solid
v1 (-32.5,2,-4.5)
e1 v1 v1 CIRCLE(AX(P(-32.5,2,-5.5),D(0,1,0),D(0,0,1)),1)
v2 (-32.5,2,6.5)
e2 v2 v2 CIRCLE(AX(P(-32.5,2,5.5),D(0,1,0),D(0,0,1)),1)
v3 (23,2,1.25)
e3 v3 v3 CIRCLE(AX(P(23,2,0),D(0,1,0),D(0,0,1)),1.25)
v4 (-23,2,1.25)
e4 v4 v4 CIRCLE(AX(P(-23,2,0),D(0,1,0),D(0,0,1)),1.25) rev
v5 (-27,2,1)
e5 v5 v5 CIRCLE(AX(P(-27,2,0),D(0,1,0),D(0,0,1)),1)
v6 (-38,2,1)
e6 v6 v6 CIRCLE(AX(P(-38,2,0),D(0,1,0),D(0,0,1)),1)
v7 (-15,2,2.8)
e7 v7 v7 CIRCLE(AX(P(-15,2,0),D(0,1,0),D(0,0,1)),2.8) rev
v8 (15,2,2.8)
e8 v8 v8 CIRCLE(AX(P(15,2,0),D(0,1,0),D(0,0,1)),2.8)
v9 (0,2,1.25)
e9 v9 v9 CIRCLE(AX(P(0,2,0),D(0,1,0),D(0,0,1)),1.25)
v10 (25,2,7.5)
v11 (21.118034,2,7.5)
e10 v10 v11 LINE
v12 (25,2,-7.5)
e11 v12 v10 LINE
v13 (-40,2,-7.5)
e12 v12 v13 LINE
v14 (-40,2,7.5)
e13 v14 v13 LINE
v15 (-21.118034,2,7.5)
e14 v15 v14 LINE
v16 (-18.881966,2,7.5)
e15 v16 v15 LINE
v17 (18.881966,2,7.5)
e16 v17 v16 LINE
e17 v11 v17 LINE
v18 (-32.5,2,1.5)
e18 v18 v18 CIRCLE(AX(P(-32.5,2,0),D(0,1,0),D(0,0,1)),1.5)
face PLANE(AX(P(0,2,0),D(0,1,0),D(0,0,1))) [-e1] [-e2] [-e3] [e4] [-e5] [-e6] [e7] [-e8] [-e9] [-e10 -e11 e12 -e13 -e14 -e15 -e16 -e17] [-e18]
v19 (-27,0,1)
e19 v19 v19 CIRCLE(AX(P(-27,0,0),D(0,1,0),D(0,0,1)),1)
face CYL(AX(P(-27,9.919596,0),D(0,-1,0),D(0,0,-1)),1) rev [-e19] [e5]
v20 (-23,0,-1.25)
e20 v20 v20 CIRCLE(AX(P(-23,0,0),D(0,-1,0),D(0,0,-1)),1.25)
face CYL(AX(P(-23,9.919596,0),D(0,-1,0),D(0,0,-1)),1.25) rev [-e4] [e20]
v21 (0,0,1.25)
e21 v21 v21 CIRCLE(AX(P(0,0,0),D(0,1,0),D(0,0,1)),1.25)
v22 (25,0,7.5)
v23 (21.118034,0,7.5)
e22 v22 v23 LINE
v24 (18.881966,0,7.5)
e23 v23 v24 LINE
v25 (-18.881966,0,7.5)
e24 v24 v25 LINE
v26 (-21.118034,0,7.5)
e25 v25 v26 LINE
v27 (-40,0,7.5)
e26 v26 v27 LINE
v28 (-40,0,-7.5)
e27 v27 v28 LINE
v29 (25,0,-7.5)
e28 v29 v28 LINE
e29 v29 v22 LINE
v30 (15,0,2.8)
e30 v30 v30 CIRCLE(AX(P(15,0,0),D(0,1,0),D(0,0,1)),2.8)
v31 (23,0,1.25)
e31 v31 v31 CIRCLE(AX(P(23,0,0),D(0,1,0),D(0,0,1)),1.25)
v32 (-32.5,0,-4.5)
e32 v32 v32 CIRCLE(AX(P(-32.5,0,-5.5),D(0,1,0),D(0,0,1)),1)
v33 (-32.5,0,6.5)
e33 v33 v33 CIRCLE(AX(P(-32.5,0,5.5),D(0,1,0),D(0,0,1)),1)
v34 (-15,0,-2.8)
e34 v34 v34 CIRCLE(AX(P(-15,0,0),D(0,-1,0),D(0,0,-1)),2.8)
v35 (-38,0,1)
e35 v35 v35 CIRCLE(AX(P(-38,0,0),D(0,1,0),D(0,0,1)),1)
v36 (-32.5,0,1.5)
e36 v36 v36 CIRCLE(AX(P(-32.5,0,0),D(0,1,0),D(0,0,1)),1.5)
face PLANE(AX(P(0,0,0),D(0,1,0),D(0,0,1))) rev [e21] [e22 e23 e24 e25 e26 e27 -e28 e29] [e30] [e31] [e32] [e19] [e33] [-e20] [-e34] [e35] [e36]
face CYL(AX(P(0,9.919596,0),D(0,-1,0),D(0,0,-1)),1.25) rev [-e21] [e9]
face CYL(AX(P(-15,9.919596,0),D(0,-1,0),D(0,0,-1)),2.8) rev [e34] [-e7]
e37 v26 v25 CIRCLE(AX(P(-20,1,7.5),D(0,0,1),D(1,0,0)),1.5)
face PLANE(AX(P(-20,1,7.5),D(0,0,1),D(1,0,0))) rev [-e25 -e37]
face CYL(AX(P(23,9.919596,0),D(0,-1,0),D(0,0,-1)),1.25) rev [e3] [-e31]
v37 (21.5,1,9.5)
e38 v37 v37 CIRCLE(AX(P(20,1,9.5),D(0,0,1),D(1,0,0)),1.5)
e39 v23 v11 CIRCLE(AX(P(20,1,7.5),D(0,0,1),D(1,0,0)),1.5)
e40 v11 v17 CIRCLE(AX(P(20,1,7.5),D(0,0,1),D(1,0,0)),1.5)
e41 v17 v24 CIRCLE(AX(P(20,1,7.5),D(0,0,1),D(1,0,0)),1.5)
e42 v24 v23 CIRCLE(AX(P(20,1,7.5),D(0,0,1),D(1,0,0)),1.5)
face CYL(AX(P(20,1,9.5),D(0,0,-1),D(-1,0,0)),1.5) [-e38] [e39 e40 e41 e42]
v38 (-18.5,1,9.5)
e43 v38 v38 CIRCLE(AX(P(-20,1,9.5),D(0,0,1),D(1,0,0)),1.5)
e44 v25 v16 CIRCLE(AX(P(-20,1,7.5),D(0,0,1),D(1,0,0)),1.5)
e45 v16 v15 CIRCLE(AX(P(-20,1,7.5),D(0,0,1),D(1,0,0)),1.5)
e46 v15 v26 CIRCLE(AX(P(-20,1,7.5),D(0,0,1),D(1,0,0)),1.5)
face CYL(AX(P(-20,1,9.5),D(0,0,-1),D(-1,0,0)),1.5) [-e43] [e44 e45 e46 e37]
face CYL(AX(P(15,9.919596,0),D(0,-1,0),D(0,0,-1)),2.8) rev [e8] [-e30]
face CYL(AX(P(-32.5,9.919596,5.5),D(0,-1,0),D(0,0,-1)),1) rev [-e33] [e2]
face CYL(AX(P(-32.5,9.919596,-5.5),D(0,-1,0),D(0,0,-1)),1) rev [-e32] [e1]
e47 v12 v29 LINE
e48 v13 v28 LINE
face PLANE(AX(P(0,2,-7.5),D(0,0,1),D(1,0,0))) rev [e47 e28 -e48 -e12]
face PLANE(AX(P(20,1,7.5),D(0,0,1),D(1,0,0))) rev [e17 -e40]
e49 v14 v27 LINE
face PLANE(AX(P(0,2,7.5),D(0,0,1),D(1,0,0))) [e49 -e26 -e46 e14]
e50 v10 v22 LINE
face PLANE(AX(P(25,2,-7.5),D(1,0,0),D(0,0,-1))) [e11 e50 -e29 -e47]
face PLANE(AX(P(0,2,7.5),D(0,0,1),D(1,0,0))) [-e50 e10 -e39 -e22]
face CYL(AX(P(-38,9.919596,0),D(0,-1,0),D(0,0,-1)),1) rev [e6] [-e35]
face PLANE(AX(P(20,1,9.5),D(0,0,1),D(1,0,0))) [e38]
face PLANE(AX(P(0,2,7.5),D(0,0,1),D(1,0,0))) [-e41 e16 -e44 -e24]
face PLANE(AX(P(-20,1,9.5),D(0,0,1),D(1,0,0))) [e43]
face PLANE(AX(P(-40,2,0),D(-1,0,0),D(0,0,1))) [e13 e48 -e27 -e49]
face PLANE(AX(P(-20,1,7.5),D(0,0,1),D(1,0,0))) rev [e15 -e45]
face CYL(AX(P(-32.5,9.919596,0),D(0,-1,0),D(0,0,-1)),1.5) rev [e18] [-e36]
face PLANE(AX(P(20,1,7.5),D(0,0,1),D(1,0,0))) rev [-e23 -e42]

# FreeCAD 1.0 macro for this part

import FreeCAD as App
import Part
import Sketcher
from FreeCAD import Vector
Q = App.Units.Quantity


def add_polygon(sketch, points):
    """Adds a closed chain of lines whose ends are joined by coincident constraints."""
    first, n = sketch.GeometryCount, len(points)
    for a, b in zip(points, points[1:] + points[:1]):
        sketch.addGeometry(Part.LineSegment(App.Vector(*a, 0), App.Vector(*b, 0)), False)
    for i in range(n):
        sketch.addConstraint(Sketcher.Constraint("Coincident", first + i, 2, first + (i + 1) % n, 1))

doc = App.newDocument("Part")
params = doc.addObject("Spreadsheet::Sheet", "Params")
for row, (alias, value) in enumerate([
    ("sketch1_width", "65 mm"),
    ("sketch1_height", "15 mm"),
    ("pad1_length", "2 mm"),
    ("sketch2_diameter", "3 mm"),
    ("sketch2_diameter2", "2 mm"),
    ("sketch2_diameter3", "2.5 mm"),
    ("sketch2_diameter4", "5.6 mm"),
    ("pocket1_length", "2 mm"),
    ("sketch3_diameter", "3 mm"),
    ("pad2_length", "2 mm"),
], start=1):
    params.set(f"A{row}", alias)
    params.set(f"B{row}", "=" + value)
    params.setAlias(f"B{row}", alias)

body = doc.addObject("PartDesign::Body", "Body")

# Sketch on XZ plane
sketch1 = doc.addObject("Sketcher::SketchObject", "Sketch")
body.addObject(sketch1)
sketch1.AttachmentSupport = (doc.XZ_Plane, [""])
sketch1.MapMode = "FlatFace"
add_polygon(sketch1, [(-40, -8), (-40, 8), (25, 8), (25, -8)])  # lines 0-3
sketch1.addConstraint([
    Sketcher.Constraint("Vertical", 0),
    Sketcher.Constraint("Horizontal", 1),
    Sketcher.Constraint("Vertical", 2),
    Sketcher.Constraint("Horizontal", 3),
    Sketcher.Constraint("DistanceX", 1, 1, 1, 2, Q("65 mm")),
    Sketcher.Constraint("DistanceY", 0, 1, 0, 2, Q("15 mm")),
    Sketcher.Constraint("DistanceX", 0, 2, -1, 1, Q("40 mm")),
    Sketcher.Constraint("DistanceY", -1, 1, 0, 2, Q("7.5 mm")),
])
sketch1.setExpression("Constraints[8]", "Params.sketch1_width")
sketch1.setExpression("Constraints[9]", "Params.sketch1_height")
pad1 = doc.addObject("PartDesign::Pad", "Pad")
body.addObject(pad1)
pad1.Profile = sketch1
pad1.setExpression("Length", "Params.pad1_length")
pad1.Reversed = True

# Sketch on XZ plane
sketch2 = doc.addObject("Sketcher::SketchObject", "Sketch001")
body.addObject(sketch2)
sketch2.AttachmentSupport = (doc.XZ_Plane, [""])
sketch2.MapMode = "FlatFace"
sketch2.addGeometry([
    Part.Circle(Vector(0, 0, 0), Vector(0, 0, 1), 1.2),  # 0
    Part.Circle(Vector(15, 0, 0), Vector(0, 0, 1), 2.8),  # 1
    Part.Circle(Vector(-15, 0, 0), Vector(0, 0, 1), 2.8),  # 2
    Part.Circle(Vector(23, 0, 0), Vector(0, 0, 1), 1.2),  # 3
    Part.Circle(Vector(-23, 0, 0), Vector(0, 0, 1), 1.2),  # 4
    Part.Circle(Vector(-32.5, 0, 0), Vector(0, 0, 1), 1.5),  # 5
    Part.Circle(Vector(-27, 0, 0), Vector(0, 0, 1), 1),  # 6
    Part.Circle(Vector(-32.5, 5.5, 0), Vector(0, 0, 1), 1),  # 7
    Part.Circle(Vector(-38, 0, 0), Vector(0, 0, 1), 1),  # 8
    Part.Circle(Vector(-32.5, -5.5, 0), Vector(0, 0, 1), 1),  # 9
], False)
sketch2.addConstraint([
    Sketcher.Constraint("Coincident", 0, 3, -1, 1),
    Sketcher.Constraint("Equal", 1, 2),
    Sketcher.Constraint("Equal", 0, 3),
    Sketcher.Constraint("Equal", 3, 4),
    Sketcher.Constraint("Equal", 6, 7),
    Sketcher.Constraint("Equal", 7, 8),
    Sketcher.Constraint("Equal", 8, 9),
    Sketcher.Constraint("Symmetric", 1, 3, 2, 3, -1, 1),
    Sketcher.Constraint("Symmetric", 3, 3, 4, 3, -1, 1),
    Sketcher.Constraint("Symmetric", 7, 3, 9, 3, -1),
    Sketcher.Constraint("PointOnObject", 1, 3, -1),
    Sketcher.Constraint("PointOnObject", 3, 3, -1),
    Sketcher.Constraint("PointOnObject", 5, 3, -1),
    Sketcher.Constraint("PointOnObject", 6, 3, -1),
    Sketcher.Constraint("PointOnObject", 8, 3, -1),
    Sketcher.Constraint("Vertical", 5, 3, 7, 3),
    Sketcher.Constraint("Diameter", 5, Q("3 mm")),
    Sketcher.Constraint("Diameter", 6, Q("2 mm")),
    Sketcher.Constraint("Diameter", 0, Q("2.5 mm")),
    Sketcher.Constraint("Diameter", 1, Q("5.6 mm")),
    Sketcher.Constraint("DistanceX", -1, 1, 1, 3, Q("15 mm")),
    Sketcher.Constraint("DistanceX", -1, 1, 3, 3, Q("23 mm")),
    Sketcher.Constraint("DistanceX", 6, 3, -1, 1, Q("27 mm")),
    Sketcher.Constraint("DistanceX", 8, 3, -1, 1, Q("38 mm")),
    Sketcher.Constraint("DistanceY", 9, 3, 7, 3, Q("11 mm")),
    Sketcher.Constraint("DistanceX", 5, 3, -1, 1, Q("32.5 mm")),
])
sketch2.setExpression("Constraints[16]", "Params.sketch2_diameter")
sketch2.setExpression("Constraints[17]", "Params.sketch2_diameter2")
sketch2.setExpression("Constraints[18]", "Params.sketch2_diameter3")
sketch2.setExpression("Constraints[19]", "Params.sketch2_diameter4")
pocket1 = doc.addObject("PartDesign::Pocket", "Pocket")
body.addObject(pocket1)
pocket1.Profile = sketch2
pocket1.setExpression("Length", "Params.pocket1_length")

# Sketch on XY plane
sketch3 = doc.addObject("Sketcher::SketchObject", "Sketch002")
body.addObject(sketch3)
sketch3.AttachmentSupport = (doc.XY_Plane, [""])
sketch3.MapMode = "FlatFace"
sketch3.AttachmentOffset = App.Placement(Vector(0, 0, 7.5), App.Rotation())
sketch3.addGeometry([
    Part.Circle(Vector(20, 1, 0), Vector(0, 0, 1), 1.5),
    Part.Circle(Vector(-20, 1, 0), Vector(0, 0, 1), 1.5),
], False)
sketch3.addConstraint([
    Sketcher.Constraint("Equal", 0, 1),
    Sketcher.Constraint("Symmetric", 0, 3, 1, 3, -2),
    Sketcher.Constraint("Diameter", 0, Q("3 mm")),
    Sketcher.Constraint("DistanceX", -1, 1, 0, 3, Q("20 mm")),
    Sketcher.Constraint("DistanceY", -1, 1, 0, 3, Q("1 mm")),
])
sketch3.setExpression("Constraints[2]", "Params.sketch3_diameter")
pad2 = doc.addObject("PartDesign::Pad", "Pad001")
body.addObject(pad2)
pad2.Profile = sketch3
pad2.setExpression("Length", "Params.pad2_length")

doc.recompute()
